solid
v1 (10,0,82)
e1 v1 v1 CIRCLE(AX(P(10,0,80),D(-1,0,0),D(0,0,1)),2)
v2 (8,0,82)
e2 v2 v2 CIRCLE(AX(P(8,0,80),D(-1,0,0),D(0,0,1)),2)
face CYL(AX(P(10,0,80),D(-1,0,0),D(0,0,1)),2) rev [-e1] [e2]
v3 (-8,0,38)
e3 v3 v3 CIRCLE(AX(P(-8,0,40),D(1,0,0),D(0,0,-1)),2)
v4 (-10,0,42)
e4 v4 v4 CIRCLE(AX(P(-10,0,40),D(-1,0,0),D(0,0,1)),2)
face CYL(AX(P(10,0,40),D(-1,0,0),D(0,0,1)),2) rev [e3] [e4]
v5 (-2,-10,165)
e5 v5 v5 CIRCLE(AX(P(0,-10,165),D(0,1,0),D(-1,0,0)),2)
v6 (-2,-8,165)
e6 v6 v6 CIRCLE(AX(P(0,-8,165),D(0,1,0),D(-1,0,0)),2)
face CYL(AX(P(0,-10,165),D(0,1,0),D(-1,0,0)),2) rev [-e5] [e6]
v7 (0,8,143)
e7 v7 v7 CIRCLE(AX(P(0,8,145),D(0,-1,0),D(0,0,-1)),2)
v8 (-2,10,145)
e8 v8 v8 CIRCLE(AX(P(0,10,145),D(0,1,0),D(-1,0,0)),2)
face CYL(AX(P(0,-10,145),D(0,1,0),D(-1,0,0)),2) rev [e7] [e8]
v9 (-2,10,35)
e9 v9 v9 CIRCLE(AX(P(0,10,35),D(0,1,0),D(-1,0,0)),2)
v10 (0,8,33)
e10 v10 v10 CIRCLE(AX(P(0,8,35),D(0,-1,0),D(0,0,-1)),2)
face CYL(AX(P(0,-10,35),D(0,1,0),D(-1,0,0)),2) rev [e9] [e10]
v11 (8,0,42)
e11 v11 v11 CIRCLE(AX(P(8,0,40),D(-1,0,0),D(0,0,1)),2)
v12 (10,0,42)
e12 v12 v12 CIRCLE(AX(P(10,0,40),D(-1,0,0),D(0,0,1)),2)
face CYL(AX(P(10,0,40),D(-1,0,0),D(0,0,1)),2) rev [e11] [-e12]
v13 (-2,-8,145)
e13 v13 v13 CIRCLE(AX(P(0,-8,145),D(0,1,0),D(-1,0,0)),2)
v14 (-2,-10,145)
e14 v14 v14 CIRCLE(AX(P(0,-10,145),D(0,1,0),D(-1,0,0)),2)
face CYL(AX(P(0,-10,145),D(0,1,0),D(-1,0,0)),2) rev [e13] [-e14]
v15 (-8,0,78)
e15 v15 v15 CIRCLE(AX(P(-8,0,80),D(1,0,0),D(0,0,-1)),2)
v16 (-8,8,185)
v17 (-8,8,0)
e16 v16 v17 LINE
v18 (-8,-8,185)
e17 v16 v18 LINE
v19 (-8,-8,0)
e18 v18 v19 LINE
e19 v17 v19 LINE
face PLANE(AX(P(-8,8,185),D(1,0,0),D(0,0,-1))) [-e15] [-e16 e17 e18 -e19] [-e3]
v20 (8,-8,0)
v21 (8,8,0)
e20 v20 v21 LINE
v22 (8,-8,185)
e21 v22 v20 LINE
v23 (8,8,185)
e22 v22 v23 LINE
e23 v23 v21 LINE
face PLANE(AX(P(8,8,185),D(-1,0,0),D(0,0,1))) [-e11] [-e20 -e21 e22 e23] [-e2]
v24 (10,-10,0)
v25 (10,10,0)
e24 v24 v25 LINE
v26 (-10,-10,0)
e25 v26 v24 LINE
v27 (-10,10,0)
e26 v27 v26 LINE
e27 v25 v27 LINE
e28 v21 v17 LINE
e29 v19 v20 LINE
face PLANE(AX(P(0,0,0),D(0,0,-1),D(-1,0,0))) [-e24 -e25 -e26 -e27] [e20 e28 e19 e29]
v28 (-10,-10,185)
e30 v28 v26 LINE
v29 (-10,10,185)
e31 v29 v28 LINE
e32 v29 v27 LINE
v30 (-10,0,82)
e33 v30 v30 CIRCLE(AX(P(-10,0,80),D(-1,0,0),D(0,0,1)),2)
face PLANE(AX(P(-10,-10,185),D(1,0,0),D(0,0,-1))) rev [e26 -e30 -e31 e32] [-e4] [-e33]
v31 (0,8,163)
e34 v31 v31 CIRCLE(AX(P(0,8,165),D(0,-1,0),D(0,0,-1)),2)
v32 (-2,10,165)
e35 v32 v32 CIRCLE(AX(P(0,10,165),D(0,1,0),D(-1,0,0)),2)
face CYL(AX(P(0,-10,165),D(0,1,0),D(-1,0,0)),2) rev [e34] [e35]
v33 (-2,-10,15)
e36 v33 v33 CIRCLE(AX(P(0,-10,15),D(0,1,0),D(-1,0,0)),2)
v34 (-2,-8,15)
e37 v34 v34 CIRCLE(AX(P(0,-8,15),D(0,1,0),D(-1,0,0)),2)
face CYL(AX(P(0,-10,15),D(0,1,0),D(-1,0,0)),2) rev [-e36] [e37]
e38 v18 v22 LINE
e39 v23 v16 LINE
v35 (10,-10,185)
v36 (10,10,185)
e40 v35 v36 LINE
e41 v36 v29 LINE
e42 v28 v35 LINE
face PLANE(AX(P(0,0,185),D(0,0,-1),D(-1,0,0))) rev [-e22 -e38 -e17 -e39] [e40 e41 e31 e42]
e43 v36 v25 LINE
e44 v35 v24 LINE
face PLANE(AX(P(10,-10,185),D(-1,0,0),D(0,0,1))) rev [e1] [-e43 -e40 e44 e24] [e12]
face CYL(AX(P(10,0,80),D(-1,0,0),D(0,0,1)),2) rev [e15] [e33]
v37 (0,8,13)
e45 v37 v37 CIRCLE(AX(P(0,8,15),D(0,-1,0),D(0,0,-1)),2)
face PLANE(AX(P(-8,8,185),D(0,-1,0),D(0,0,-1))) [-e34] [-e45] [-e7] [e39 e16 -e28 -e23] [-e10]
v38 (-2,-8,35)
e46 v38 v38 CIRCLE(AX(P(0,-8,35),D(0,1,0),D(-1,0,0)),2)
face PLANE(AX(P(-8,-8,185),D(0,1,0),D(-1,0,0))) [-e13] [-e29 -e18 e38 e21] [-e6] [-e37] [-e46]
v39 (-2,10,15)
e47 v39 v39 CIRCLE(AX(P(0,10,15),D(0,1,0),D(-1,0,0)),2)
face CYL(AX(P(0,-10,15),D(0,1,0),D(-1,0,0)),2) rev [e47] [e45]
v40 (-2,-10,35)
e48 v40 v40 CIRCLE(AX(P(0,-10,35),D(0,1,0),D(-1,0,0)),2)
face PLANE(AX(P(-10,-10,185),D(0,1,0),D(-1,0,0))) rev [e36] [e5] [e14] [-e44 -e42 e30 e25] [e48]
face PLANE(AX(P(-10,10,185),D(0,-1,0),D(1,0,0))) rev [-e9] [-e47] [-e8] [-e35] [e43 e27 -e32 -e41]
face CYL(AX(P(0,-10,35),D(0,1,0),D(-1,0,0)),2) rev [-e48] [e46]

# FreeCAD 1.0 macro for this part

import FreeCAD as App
import Part
import Sketcher
from FreeCAD import Vector
Q = App.Units.Quantity

doc = App.newDocument("Part")
body = doc.addObject("PartDesign::Body", "Body")

# Sketch on XY plane
sketch1 = body.newObject("Sketcher::SketchObject", "Sketch")
sketch1.AttachmentSupport = (doc.getObject("XY_Plane"), [""])
sketch1.MapMode = "FlatFace"
sketch1.addGeometry(Part.LineSegment(Vector(-10, 10, 0), Vector(-10, -10, 0)), False)
sketch1.addGeometry(Part.LineSegment(Vector(-10, -10, 0), Vector(10, -10, 0)), False)
sketch1.addGeometry(Part.LineSegment(Vector(10, -10, 0), Vector(10, 10, 0)), False)
sketch1.addGeometry(Part.LineSegment(Vector(10, 10, 0), Vector(-10, 10, 0)), False)
sketch1.addGeometry(Part.LineSegment(Vector(8, -8, 0), Vector(-8, -8, 0)), False)
sketch1.addGeometry(Part.LineSegment(Vector(-8, -8, 0), Vector(-8, 8, 0)), False)
sketch1.addGeometry(Part.LineSegment(Vector(-8, 8, 0), Vector(8, 8, 0)), False)
sketch1.addGeometry(Part.LineSegment(Vector(8, 8, 0), Vector(8, -8, 0)), False)
sketch1.addConstraint(Sketcher.Constraint("Coincident", 0, 2, 1, 1))
sketch1.addConstraint(Sketcher.Constraint("Coincident", 1, 2, 2, 1))
sketch1.addConstraint(Sketcher.Constraint("Coincident", 2, 2, 3, 1))
sketch1.addConstraint(Sketcher.Constraint("Coincident", 3, 2, 0, 1))
sketch1.addConstraint(Sketcher.Constraint("Coincident", 4, 2, 5, 1))
sketch1.addConstraint(Sketcher.Constraint("Coincident", 5, 2, 6, 1))
sketch1.addConstraint(Sketcher.Constraint("Coincident", 6, 2, 7, 1))
sketch1.addConstraint(Sketcher.Constraint("Coincident", 7, 2, 4, 1))
sketch1.addConstraint(Sketcher.Constraint("Vertical", 0))
sketch1.addConstraint(Sketcher.Constraint("Horizontal", 1))
sketch1.addConstraint(Sketcher.Constraint("Vertical", 2))
sketch1.addConstraint(Sketcher.Constraint("Horizontal", 3))
sketch1.addConstraint(Sketcher.Constraint("Horizontal", 4))
sketch1.addConstraint(Sketcher.Constraint("Vertical", 5))
sketch1.addConstraint(Sketcher.Constraint("Horizontal", 6))
sketch1.addConstraint(Sketcher.Constraint("Vertical", 7))
sketch1.addConstraint(Sketcher.Constraint("Symmetric", 0, 2, 2, 2, -1, 1))
sketch1.addConstraint(Sketcher.Constraint("Symmetric", 4, 2, 6, 2, -1, 1))
sketch1.addConstraint(Sketcher.Constraint("Equal", 3, 0))
sketch1.addConstraint(Sketcher.Constraint("Equal", 6, 5))
sketch1.addConstraint(Sketcher.Constraint("DistanceX", 1, 1, 1, 2, Q("20 mm")))
sketch1.addConstraint(Sketcher.Constraint("DistanceX", 4, 2, 4, 1, Q("16 mm")))
pad1 = body.newObject("PartDesign::Pad", "Pad")
pad1.Profile = sketch1
pad1.Length = 185

# Sketch on XZ plane
sketch2 = body.newObject("Sketcher::SketchObject", "Sketch001")
sketch2.AttachmentSupport = (doc.getObject("XZ_Plane"), [""])
sketch2.MapMode = "FlatFace"
sketch2.AttachmentOffset = App.Placement(Vector(0, 0, -10), App.Rotation())
sketch2.addGeometry(Part.Circle(Vector(0, 15, 0), Vector(0, 0, 1), 2), False)
sketch2.addGeometry(Part.Circle(Vector(0, 35, 0), Vector(0, 0, 1), 2), False)
sketch2.addGeometry(Part.Circle(Vector(0, 165, 0), Vector(0, 0, 1), 2), False)
sketch2.addGeometry(Part.Circle(Vector(0, 145, 0), Vector(0, 0, 1), 2), False)
sketch2.addConstraint(Sketcher.Constraint("Equal", 0, 1))
sketch2.addConstraint(Sketcher.Constraint("Equal", 1, 2))
sketch2.addConstraint(Sketcher.Constraint("Equal", 2, 3))
sketch2.addConstraint(Sketcher.Constraint("PointOnObject", 0, 3, -2))
sketch2.addConstraint(Sketcher.Constraint("PointOnObject", 1, 3, -2))
sketch2.addConstraint(Sketcher.Constraint("PointOnObject", 2, 3, -2))
sketch2.addConstraint(Sketcher.Constraint("PointOnObject", 3, 3, -2))
sketch2.addConstraint(Sketcher.Constraint("Diameter", 0, Q("4 mm")))
sketch2.addConstraint(Sketcher.Constraint("DistanceY", -1, 1, 0, 3, Q("15 mm")))
sketch2.addConstraint(Sketcher.Constraint("DistanceY", -1, 1, 1, 3, Q("35 mm")))
sketch2.addConstraint(Sketcher.Constraint("DistanceY", -1, 1, 2, 3, Q("165 mm")))
sketch2.addConstraint(Sketcher.Constraint("DistanceY", -1, 1, 3, 3, Q("145 mm")))
pocket1 = body.newObject("PartDesign::Pocket", "Pocket")
pocket1.Profile = sketch2
pocket1.Type = "ThroughAll"
pocket1.Reversed = True

# Sketch on YZ plane
sketch3 = body.newObject("Sketcher::SketchObject", "Sketch002")
sketch3.AttachmentSupport = (doc.getObject("YZ_Plane"), [""])
sketch3.MapMode = "FlatFace"
sketch3.AttachmentOffset = App.Placement(Vector(0, 0, -10), App.Rotation())
sketch3.addGeometry(Part.Circle(Vector(0, 40, 0), Vector(0, 0, 1), 2), False)
sketch3.addGeometry(Part.Circle(Vector(0, 80, 0), Vector(0, 0, 1), 2), False)
sketch3.addConstraint(Sketcher.Constraint("Equal", 0, 1))
sketch3.addConstraint(Sketcher.Constraint("PointOnObject", 0, 3, -2))
sketch3.addConstraint(Sketcher.Constraint("PointOnObject", 1, 3, -2))
sketch3.addConstraint(Sketcher.Constraint("Diameter", 0, Q("4 mm")))
sketch3.addConstraint(Sketcher.Constraint("DistanceY", -1, 1, 0, 3, Q("40 mm")))
sketch3.addConstraint(Sketcher.Constraint("DistanceY", -1, 1, 1, 3, Q("80 mm")))
pocket2 = body.newObject("PartDesign::Pocket", "Pocket001")
pocket2.Profile = sketch3
pocket2.Type = "ThroughAll"
pocket2.Reversed = True

doc.recompute()
